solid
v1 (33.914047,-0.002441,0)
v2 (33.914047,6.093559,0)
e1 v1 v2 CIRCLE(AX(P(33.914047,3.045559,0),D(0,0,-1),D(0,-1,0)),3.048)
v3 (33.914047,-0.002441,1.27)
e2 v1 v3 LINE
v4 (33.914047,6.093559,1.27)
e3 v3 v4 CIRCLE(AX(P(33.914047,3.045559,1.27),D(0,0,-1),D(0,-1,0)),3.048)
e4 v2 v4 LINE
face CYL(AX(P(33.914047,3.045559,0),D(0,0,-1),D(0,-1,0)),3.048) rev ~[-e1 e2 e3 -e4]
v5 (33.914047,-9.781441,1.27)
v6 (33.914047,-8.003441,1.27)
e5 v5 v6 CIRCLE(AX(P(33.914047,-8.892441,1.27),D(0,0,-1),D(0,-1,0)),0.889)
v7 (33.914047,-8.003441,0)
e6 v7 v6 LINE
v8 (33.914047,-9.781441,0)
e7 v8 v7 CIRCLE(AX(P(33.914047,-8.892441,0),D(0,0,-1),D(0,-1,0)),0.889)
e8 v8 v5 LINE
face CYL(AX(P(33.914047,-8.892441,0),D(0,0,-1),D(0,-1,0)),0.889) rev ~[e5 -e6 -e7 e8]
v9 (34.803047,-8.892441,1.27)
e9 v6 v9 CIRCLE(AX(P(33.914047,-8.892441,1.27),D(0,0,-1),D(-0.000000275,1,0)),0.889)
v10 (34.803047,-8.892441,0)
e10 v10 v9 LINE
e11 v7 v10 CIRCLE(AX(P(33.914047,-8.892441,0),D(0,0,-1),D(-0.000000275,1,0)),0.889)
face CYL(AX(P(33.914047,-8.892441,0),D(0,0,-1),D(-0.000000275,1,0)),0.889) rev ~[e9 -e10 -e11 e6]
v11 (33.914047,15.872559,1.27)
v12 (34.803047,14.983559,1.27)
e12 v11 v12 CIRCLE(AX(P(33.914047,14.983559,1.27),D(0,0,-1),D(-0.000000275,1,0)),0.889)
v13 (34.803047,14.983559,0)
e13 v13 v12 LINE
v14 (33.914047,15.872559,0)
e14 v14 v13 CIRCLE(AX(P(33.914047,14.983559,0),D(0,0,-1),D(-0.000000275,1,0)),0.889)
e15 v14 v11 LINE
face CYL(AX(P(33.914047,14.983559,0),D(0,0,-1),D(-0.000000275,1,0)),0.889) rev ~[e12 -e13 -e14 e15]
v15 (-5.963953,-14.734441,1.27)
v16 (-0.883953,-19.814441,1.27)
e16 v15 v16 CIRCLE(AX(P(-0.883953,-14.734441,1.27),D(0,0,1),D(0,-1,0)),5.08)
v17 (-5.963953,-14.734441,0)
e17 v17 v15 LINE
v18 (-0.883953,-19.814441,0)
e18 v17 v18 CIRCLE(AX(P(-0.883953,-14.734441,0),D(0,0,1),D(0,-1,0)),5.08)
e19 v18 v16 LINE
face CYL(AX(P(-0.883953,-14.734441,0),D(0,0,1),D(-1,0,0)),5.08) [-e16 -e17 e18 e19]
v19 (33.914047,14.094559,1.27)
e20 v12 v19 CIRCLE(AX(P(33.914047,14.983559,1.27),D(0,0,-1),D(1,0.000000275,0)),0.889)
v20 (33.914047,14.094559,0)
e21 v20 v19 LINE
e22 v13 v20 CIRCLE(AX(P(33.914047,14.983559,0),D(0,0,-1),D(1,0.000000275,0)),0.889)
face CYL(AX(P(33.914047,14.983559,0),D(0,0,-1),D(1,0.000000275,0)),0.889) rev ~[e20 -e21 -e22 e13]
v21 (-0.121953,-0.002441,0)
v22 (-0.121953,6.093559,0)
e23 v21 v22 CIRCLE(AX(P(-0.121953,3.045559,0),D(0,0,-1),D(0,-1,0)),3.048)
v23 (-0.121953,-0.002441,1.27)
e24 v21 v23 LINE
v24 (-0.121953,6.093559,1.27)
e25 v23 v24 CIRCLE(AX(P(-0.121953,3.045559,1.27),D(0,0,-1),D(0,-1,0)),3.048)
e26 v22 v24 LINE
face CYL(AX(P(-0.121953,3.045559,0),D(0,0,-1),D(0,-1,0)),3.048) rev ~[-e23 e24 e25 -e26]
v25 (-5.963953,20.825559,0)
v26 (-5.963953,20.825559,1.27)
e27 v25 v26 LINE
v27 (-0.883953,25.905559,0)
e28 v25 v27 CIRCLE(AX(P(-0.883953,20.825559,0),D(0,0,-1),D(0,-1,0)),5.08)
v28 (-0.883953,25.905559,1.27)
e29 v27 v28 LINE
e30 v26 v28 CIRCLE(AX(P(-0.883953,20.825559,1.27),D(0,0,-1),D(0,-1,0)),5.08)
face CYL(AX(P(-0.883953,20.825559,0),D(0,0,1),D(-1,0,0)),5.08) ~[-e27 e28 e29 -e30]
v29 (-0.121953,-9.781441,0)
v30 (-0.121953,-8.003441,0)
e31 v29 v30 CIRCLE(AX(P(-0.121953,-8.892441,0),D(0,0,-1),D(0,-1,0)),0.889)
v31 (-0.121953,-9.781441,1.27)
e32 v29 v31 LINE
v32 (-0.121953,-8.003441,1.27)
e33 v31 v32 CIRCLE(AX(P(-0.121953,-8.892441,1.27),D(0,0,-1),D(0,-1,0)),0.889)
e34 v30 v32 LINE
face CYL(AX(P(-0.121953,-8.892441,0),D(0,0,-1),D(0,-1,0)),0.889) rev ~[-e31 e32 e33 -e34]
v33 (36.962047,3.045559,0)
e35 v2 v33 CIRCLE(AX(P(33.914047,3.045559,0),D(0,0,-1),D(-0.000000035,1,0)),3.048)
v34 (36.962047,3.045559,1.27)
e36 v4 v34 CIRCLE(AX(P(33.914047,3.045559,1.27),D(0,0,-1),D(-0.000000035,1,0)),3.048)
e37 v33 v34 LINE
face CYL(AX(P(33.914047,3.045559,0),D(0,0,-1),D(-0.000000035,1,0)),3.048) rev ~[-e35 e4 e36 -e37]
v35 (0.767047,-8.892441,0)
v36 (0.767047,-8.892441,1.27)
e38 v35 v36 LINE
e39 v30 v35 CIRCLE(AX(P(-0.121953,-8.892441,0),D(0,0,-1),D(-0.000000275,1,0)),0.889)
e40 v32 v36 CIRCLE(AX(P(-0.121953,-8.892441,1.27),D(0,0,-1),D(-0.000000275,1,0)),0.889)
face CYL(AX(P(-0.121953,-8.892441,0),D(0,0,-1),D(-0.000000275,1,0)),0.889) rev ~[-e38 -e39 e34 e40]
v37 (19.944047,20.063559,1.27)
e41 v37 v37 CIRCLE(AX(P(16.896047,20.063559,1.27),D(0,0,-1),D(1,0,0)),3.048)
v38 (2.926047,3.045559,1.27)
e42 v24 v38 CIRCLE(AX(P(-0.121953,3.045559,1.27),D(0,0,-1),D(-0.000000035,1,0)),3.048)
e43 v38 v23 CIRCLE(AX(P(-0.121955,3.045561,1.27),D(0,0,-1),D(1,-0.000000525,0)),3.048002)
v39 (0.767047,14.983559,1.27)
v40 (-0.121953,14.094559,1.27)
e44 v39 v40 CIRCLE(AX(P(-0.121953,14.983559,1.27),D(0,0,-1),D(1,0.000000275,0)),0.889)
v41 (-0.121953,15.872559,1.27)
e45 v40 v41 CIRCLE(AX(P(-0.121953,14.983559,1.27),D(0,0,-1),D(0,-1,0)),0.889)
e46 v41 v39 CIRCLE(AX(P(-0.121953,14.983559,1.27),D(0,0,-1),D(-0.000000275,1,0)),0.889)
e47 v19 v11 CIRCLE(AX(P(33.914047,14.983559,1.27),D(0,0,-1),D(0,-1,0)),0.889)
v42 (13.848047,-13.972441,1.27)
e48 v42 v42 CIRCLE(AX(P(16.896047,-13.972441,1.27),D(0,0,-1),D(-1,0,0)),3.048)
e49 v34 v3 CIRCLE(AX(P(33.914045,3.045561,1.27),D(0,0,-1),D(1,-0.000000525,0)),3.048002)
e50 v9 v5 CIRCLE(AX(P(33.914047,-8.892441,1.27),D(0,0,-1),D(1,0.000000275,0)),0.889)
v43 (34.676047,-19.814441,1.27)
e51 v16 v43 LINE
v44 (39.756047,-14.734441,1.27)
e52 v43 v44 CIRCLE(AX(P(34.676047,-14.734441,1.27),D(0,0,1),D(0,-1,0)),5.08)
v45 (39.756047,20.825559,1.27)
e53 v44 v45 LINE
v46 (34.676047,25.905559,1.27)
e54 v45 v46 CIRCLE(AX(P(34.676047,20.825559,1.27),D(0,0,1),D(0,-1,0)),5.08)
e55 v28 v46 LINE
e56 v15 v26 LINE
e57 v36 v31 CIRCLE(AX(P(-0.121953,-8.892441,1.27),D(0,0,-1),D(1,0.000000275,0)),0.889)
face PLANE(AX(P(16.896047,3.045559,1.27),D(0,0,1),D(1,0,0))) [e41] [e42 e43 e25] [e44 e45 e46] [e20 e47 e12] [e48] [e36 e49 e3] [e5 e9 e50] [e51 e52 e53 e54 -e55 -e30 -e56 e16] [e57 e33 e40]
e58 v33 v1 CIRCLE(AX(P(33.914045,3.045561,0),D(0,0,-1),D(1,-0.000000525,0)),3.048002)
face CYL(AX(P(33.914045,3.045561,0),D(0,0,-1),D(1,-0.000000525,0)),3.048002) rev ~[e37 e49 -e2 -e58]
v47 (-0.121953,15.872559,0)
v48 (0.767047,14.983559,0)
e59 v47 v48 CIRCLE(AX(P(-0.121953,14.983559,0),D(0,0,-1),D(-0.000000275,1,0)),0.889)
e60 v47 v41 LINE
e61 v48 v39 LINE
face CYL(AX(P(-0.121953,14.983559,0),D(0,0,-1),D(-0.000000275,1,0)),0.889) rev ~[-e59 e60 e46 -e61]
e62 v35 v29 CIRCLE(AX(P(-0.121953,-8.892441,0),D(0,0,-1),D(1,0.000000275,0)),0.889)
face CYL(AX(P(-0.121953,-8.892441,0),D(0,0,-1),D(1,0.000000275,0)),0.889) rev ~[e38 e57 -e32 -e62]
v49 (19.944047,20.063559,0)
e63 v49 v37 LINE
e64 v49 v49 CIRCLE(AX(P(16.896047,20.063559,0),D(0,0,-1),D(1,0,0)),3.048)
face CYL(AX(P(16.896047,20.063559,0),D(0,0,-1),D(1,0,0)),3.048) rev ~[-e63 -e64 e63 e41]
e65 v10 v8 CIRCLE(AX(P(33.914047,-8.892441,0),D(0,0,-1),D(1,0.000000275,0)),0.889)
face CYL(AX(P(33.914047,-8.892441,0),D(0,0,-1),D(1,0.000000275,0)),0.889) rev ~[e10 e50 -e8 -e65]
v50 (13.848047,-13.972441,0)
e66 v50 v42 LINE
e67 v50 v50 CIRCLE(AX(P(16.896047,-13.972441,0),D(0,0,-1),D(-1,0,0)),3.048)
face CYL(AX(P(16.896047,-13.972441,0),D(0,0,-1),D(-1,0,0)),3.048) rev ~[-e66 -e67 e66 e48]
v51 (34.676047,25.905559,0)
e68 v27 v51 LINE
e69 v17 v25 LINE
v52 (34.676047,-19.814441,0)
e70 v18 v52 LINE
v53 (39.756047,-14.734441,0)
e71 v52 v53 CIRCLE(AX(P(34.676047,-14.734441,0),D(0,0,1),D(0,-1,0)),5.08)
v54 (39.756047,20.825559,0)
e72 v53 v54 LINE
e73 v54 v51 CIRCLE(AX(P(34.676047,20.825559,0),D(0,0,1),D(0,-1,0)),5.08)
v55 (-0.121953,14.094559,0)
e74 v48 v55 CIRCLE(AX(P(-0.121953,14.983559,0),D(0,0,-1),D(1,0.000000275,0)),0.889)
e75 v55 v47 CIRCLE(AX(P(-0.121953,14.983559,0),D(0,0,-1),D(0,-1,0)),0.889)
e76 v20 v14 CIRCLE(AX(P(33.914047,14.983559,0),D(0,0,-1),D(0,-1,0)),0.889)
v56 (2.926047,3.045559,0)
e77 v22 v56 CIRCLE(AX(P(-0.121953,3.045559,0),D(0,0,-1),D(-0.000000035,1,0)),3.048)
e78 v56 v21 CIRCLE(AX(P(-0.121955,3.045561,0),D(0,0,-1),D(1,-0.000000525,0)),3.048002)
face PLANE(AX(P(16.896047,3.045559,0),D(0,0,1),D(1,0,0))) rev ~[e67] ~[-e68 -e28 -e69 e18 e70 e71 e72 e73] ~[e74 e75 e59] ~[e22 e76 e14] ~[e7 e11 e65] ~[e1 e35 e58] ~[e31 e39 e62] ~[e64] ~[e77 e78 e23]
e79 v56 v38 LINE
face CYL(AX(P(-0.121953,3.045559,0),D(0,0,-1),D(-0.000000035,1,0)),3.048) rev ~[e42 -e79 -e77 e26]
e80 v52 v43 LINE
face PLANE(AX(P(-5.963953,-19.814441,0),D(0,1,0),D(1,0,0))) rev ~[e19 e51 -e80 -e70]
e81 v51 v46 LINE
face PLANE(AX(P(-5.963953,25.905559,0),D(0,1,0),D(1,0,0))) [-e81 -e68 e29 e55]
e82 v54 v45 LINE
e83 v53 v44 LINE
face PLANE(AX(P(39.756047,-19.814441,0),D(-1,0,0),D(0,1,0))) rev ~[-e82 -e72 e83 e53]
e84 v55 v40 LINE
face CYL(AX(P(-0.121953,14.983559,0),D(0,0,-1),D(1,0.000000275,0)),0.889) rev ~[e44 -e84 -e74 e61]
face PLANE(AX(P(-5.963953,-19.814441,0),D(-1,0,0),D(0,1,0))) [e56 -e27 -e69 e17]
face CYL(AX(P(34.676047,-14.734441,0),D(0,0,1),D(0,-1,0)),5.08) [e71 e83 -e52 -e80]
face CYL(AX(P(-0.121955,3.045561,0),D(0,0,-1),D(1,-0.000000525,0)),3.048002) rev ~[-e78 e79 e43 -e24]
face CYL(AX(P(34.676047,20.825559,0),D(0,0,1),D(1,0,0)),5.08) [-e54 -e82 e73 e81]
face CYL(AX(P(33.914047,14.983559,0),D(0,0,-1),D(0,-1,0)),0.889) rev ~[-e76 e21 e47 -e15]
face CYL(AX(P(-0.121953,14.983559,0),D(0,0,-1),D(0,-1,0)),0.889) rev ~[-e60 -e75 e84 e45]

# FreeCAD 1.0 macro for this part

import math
import FreeCAD as App
import Part
import Sketcher
Q = App.Units.Quantity


def edges_at(feature, points):
    """Names of the edges that pass closest to the given points."""
    edges = feature.Shape.Edges
    near = lambda p: min(range(len(edges)), key=lambda i: edges[i].distToShape(Part.Vertex(*p))[0])
    return sorted({f"Edge{near(p) + 1}" for p in points})


def add_polygon(sketch, points):
    """Adds a closed chain of lines whose ends are joined by coincident constraints."""
    first, n = sketch.GeometryCount, len(points)
    for a, b in zip(points, points[1:] + points[:1]):
        sketch.addGeometry(Part.LineSegment(App.Vector(*a, 0), App.Vector(*b, 0)), False)
    for i in range(n):
        sketch.addConstraint(Sketcher.Constraint("Coincident", first + i, 2, first + (i + 1) % n, 1))

doc = App.newDocument("Part")
body = doc.addObject("PartDesign::Body", "Body")

sketch1 = body.newObject("Sketcher::SketchObject", "Sketch")
sketch1.AttachmentSupport = (doc.getObject("XY_Plane"), [""])
sketch1.MapMode = "FlatFace"
add_polygon(sketch1, [(-6, 25.9), (-6, -19.8), (39.8, -19.8), (39.8, 25.9)])
sketch1.addGeometry(Part.ArcOfCircle(Part.Circle(App.Vector(-0.1, 15, 0), App.Vector(0, 0, 1), 0.9), math.radians(90), math.radians(270)), False)
sketch1.addGeometry(Part.ArcOfCircle(Part.Circle(App.Vector(-0.1, 15, 0), App.Vector(0, 0, 1), 0.9), math.radians(0), math.radians(90)), False)
sketch1.addGeometry(Part.ArcOfCircle(Part.Circle(App.Vector(-0.1, 15, 0), App.Vector(0, 0, 1), 0.9), math.radians(-90), math.radians(0)), False)
sketch1.addGeometry(Part.ArcOfCircle(Part.Circle(App.Vector(-0.1, 3, 0), App.Vector(0, 0, 1), 3), math.radians(90), math.radians(270)), False)
sketch1.addGeometry(Part.ArcOfCircle(Part.Circle(App.Vector(-0.1, 3, 0), App.Vector(0, 0, 1), 3), math.radians(0), math.radians(90)), False)
sketch1.addGeometry(Part.ArcOfCircle(Part.Circle(App.Vector(-0.1, 3, 0), App.Vector(0, 0, 1), 3), math.radians(-90), math.radians(0)), False)
sketch1.addGeometry(Part.ArcOfCircle(Part.Circle(App.Vector(-0.1, -8.9, 0), App.Vector(0, 0, 1), 0.9), math.radians(90), math.radians(270)), False)
sketch1.addGeometry(Part.ArcOfCircle(Part.Circle(App.Vector(-0.1, -8.9, 0), App.Vector(0, 0, 1), 0.9), math.radians(0), math.radians(90)), False)
sketch1.addGeometry(Part.ArcOfCircle(Part.Circle(App.Vector(-0.1, -8.9, 0), App.Vector(0, 0, 1), 0.9), math.radians(-90), math.radians(0)), False)
sketch1.addGeometry(Part.Circle(App.Vector(16.9, -14, 0), App.Vector(0, 0, 1), 3), False)
sketch1.addGeometry(Part.ArcOfCircle(Part.Circle(App.Vector(33.9, -8.9, 0), App.Vector(0, 0, 1), 0.9), math.radians(-90), math.radians(0)), False)
sketch1.addGeometry(Part.ArcOfCircle(Part.Circle(App.Vector(33.9, -8.9, 0), App.Vector(0, 0, 1), 0.9), math.radians(90), math.radians(270)), False)
sketch1.addGeometry(Part.ArcOfCircle(Part.Circle(App.Vector(33.9, -8.9, 0), App.Vector(0, 0, 1), 0.9), math.radians(0), math.radians(90)), False)
sketch1.addGeometry(Part.ArcOfCircle(Part.Circle(App.Vector(33.9, 3, 0), App.Vector(0, 0, 1), 3), math.radians(-90), math.radians(0)), False)
sketch1.addGeometry(Part.ArcOfCircle(Part.Circle(App.Vector(33.9, 3, 0), App.Vector(0, 0, 1), 3), math.radians(90), math.radians(270)), False)
sketch1.addGeometry(Part.ArcOfCircle(Part.Circle(App.Vector(33.9, 3, 0), App.Vector(0, 0, 1), 3), math.radians(0), math.radians(90)), False)
sketch1.addGeometry(Part.ArcOfCircle(Part.Circle(App.Vector(33.9, 15, 0), App.Vector(0, 0, 1), 0.9), math.radians(-90), math.radians(0)), False)
sketch1.addGeometry(Part.ArcOfCircle(Part.Circle(App.Vector(33.9, 15, 0), App.Vector(0, 0, 1), 0.9), math.radians(90), math.radians(270)), False)
sketch1.addGeometry(Part.ArcOfCircle(Part.Circle(App.Vector(33.9, 15, 0), App.Vector(0, 0, 1), 0.9), math.radians(0), math.radians(90)), False)
sketch1.addGeometry(Part.Circle(App.Vector(16.9, 20.1, 0), App.Vector(0, 0, 1), 3), False)
sketch1.addConstraint([
    Sketcher.Constraint("Tangent", 4, 1, 5, 2),
    Sketcher.Constraint("Tangent", 5, 1, 6, 2),
    Sketcher.Constraint("Tangent", 6, 1, 4, 2),
    Sketcher.Constraint("Tangent", 7, 1, 8, 2),
    Sketcher.Constraint("Tangent", 8, 1, 9, 2),
    Sketcher.Constraint("Tangent", 9, 1, 7, 2),
    Sketcher.Constraint("Tangent", 10, 1, 11, 2),
    Sketcher.Constraint("Tangent", 11, 1, 12, 2),
    Sketcher.Constraint("Tangent", 12, 1, 10, 2),
    Sketcher.Constraint("Tangent", 14, 1, 15, 2),
    Sketcher.Constraint("Tangent", 15, 1, 16, 2),
    Sketcher.Constraint("Tangent", 16, 1, 14, 2),
    Sketcher.Constraint("Tangent", 17, 1, 18, 2),
    Sketcher.Constraint("Tangent", 18, 1, 19, 2),
    Sketcher.Constraint("Tangent", 19, 1, 17, 2),
    Sketcher.Constraint("Tangent", 20, 1, 21, 2),
    Sketcher.Constraint("Tangent", 21, 1, 22, 2),
    Sketcher.Constraint("Tangent", 22, 1, 20, 2),
    Sketcher.Constraint("Vertical", 0),
    Sketcher.Constraint("Horizontal", 1),
    Sketcher.Constraint("Vertical", 2),
    Sketcher.Constraint("Horizontal", 3),
    Sketcher.Constraint("Equal", 6, 10),
    Sketcher.Constraint("Equal", 9, 13),
    Sketcher.Constraint("Equal", 12, 14),
    Sketcher.Constraint("Equal", 13, 17),
    Sketcher.Constraint("Equal", 16, 20),
    Sketcher.Constraint("Equal", 19, 23),
    Sketcher.Constraint("Horizontal", 12, 3, 14, 3),
    Sketcher.Constraint("Horizontal", 9, 3, 17, 3),
    Sketcher.Constraint("Horizontal", 6, 3, 20, 3),
    Sketcher.Constraint("Horizontal", 22, 3, 5, 1),
    Sketcher.Constraint("Horizontal", 19, 3, 8, 1),
    Sketcher.Constraint("Horizontal", 16, 3, 11, 1),
    Sketcher.Constraint("Horizontal", 11, 1, 16, 1),
    Sketcher.Constraint("Horizontal", 8, 1, 19, 1),
    Sketcher.Constraint("Horizontal", 5, 1, 22, 1),
    Sketcher.Constraint("Vertical", 6, 3, 7, 3),
    Sketcher.Constraint("Vertical", 9, 3, 10, 3),
    Sketcher.Constraint("Vertical", 16, 3, 17, 3),
    Sketcher.Constraint("Vertical", 19, 3, 20, 3),
    Sketcher.Constraint("Vertical", 13, 3, 23, 3),
    Sketcher.Constraint("Vertical", 12, 3, 4, 1),
    Sketcher.Constraint("Vertical", 4, 1, 6, 1),
    Sketcher.Constraint("Vertical", 6, 1, 7, 1),
    Sketcher.Constraint("Vertical", 7, 1, 9, 1),
    Sketcher.Constraint("Vertical", 9, 1, 10, 1),
    Sketcher.Constraint("Vertical", 10, 1, 12, 1),
    Sketcher.Constraint("Vertical", 22, 3, 14, 1),
    Sketcher.Constraint("Vertical", 14, 1, 15, 1),
    Sketcher.Constraint("Vertical", 15, 1, 17, 1),
    Sketcher.Constraint("Vertical", 17, 1, 18, 1),
    Sketcher.Constraint("Vertical", 18, 1, 20, 1),
    Sketcher.Constraint("Vertical", 20, 1, 21, 1),
    Sketcher.Constraint("Equal", 3, 0),
    Sketcher.Constraint("Diameter", 13, Q("0.24 in")),
    Sketcher.Constraint("DistanceX", 1, 1, 1, 2, Q("1.8 in")),
    Sketcher.Constraint("Radius", 4, Q("0.035 in")),
    Sketcher.Constraint("DistanceY", 13, 3, 12, 3, Q("0.2 in")),
    Sketcher.Constraint("DistanceY", 5, 3, 23, 3, Q("0.2 in")),
    Sketcher.Constraint("DistanceY", 0, 2, 7, 3, Q("0.9 in")),
    Sketcher.Constraint("DistanceX", 0, 2, 13, 3, Q("0.9 in")),
    Sketcher.Constraint("DistanceY", 7, 3, 6, 3, Q("0.47 in")),
    Sketcher.Constraint("DistanceY", 10, 3, 7, 3, Q("0.47 in")),
    Sketcher.Constraint("DistanceX", 12, 3, 13, 3, Q("0.67 in")),
    Sketcher.Constraint("DistanceX", 13, 3, 14, 3, Q("0.67 in")),
    Sketcher.Constraint("DistanceY", -1, 1, 4, 3, Q("14.983559 mm")),
    Sketcher.Constraint("DistanceX", 4, 3, -1, 1, Q("0.121953 mm")),
])
pad1 = body.newObject("PartDesign::Pad", "Pad")
pad1.Profile = sketch1
pad1.Length = Q("0.05 in")
doc.recompute()

fillet = body.newObject("PartDesign::Fillet", "Fillet")
fillet.Base = (pad1, edges_at(pad1, [
    (-5.964, -19.814, 0.635),
    (39.756, -19.814, 0.635),
    (39.756, 25.906, 0.635),
    (-5.964, 25.906, 0.635),
]))
fillet.Radius = Q("0.2 in")

doc.recompute()
